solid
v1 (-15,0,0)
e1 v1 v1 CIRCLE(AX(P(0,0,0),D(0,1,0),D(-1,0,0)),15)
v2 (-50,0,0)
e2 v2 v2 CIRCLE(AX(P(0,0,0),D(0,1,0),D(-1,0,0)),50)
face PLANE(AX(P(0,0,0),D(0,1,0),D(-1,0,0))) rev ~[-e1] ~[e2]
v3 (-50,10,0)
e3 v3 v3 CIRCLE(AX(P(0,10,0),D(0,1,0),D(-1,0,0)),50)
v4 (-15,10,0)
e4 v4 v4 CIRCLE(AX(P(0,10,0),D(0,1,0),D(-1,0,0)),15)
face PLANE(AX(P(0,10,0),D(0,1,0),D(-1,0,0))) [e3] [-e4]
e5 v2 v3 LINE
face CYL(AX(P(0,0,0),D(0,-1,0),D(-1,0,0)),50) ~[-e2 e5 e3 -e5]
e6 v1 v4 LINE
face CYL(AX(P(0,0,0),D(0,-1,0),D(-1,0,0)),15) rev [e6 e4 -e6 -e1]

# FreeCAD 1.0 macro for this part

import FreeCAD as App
import Part
import Sketcher

V = App.Vector
Q = App.Units.Quantity

doc = App.newDocument("Part")
body = doc.addObject("PartDesign::Body", "Body")

sketch1 = body.newObject("Sketcher::SketchObject", "Sketch")
sketch1.AttachmentSupport = (doc.getObject("XZ_Plane"), [""])
sketch1.MapMode = "FlatFace"
sketch1.addGeometry([
    Part.Circle(V(0, 0, 0), V(0, 0, 1), 50),
    Part.Circle(V(0, 0, 0), V(0, 0, 1), 15),
], False)
sketch1.addConstraint([
    Sketcher.Constraint("Coincident", 0, 3, -1, 1),
    Sketcher.Constraint("Coincident", 1, 3, -1, 1),
    Sketcher.Constraint("Diameter", 0, Q("3.937 in")),
    Sketcher.Constraint("Diameter", 1, Q("1.1811 in")),
])
pad1 = body.newObject("PartDesign::Pad", "Pad")
pad1.Profile = sketch1
pad1.Length = Q("0.3937008 in")
pad1.Reversed = True

doc.recompute()
